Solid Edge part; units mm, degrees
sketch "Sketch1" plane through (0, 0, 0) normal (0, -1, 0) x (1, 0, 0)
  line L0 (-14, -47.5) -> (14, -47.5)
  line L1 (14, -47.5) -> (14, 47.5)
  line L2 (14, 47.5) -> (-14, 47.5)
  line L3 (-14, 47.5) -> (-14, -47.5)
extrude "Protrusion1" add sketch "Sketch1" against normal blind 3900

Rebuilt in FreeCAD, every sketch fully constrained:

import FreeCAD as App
import Part
import Sketcher
from FreeCAD import Vector
Q = App.Units.Quantity

doc = App.newDocument("Part")
params = doc.addObject("Spreadsheet::Sheet", "Params")
for row, (alias, value) in enumerate([
    ("sketch1_width", "28 mm"),
    ("sketch1_height", "95 mm"),
    ("pad1_length", "3900 mm"),
], start=1):
    params.set(f"A{row}", alias)
    params.set(f"B{row}", "=" + value)
    params.setAlias(f"B{row}", alias)

body = doc.addObject("PartDesign::Body", "Body")

# Sketch on XZ plane
sketch1 = doc.addObject("Sketcher::SketchObject", "Sketch")
body.addObject(sketch1)
sketch1.AttachmentSupport = (doc.XZ_Plane, [""])
sketch1.MapMode = "FlatFace"
sketch1.addGeometry([
    Part.LineSegment(Vector(-14, 47.5, 0), Vector(-14, -47.5, 0)),
    Part.LineSegment(Vector(-14, -47.5, 0), Vector(14, -47.5, 0)),
    Part.LineSegment(Vector(14, -47.5, 0), Vector(14, 47.5, 0)),
    Part.LineSegment(Vector(14, 47.5, 0), Vector(-14, 47.5, 0)),
], False)
sketch1.addConstraint([
    Sketcher.Constraint("Coincident", 0, 2, 1, 1),
    Sketcher.Constraint("Coincident", 1, 2, 2, 1),
    Sketcher.Constraint("Coincident", 2, 2, 3, 1),
    Sketcher.Constraint("Coincident", 3, 2, 0, 1),
    Sketcher.Constraint("Vertical", 0),
    Sketcher.Constraint("Horizontal", 1),
    Sketcher.Constraint("Vertical", 2),
    Sketcher.Constraint("Horizontal", 3),
    Sketcher.Constraint("Symmetric", 0, 2, 2, 2, -1, 1),
    Sketcher.Constraint("DistanceX", 1, 1, 1, 2, Q("28 mm")),
    Sketcher.Constraint("DistanceY", 0, 2, 0, 1, Q("95 mm")),
])
sketch1.setExpression("Constraints[9]", "Params.sketch1_width")
sketch1.setExpression("Constraints[10]", "Params.sketch1_height")
pad1 = doc.addObject("PartDesign::Pad", "Pad")
body.addObject(pad1)
pad1.Profile = sketch1
pad1.setExpression("Length", "Params.pad1_length")
pad1.Reversed = True

doc.recompute()
